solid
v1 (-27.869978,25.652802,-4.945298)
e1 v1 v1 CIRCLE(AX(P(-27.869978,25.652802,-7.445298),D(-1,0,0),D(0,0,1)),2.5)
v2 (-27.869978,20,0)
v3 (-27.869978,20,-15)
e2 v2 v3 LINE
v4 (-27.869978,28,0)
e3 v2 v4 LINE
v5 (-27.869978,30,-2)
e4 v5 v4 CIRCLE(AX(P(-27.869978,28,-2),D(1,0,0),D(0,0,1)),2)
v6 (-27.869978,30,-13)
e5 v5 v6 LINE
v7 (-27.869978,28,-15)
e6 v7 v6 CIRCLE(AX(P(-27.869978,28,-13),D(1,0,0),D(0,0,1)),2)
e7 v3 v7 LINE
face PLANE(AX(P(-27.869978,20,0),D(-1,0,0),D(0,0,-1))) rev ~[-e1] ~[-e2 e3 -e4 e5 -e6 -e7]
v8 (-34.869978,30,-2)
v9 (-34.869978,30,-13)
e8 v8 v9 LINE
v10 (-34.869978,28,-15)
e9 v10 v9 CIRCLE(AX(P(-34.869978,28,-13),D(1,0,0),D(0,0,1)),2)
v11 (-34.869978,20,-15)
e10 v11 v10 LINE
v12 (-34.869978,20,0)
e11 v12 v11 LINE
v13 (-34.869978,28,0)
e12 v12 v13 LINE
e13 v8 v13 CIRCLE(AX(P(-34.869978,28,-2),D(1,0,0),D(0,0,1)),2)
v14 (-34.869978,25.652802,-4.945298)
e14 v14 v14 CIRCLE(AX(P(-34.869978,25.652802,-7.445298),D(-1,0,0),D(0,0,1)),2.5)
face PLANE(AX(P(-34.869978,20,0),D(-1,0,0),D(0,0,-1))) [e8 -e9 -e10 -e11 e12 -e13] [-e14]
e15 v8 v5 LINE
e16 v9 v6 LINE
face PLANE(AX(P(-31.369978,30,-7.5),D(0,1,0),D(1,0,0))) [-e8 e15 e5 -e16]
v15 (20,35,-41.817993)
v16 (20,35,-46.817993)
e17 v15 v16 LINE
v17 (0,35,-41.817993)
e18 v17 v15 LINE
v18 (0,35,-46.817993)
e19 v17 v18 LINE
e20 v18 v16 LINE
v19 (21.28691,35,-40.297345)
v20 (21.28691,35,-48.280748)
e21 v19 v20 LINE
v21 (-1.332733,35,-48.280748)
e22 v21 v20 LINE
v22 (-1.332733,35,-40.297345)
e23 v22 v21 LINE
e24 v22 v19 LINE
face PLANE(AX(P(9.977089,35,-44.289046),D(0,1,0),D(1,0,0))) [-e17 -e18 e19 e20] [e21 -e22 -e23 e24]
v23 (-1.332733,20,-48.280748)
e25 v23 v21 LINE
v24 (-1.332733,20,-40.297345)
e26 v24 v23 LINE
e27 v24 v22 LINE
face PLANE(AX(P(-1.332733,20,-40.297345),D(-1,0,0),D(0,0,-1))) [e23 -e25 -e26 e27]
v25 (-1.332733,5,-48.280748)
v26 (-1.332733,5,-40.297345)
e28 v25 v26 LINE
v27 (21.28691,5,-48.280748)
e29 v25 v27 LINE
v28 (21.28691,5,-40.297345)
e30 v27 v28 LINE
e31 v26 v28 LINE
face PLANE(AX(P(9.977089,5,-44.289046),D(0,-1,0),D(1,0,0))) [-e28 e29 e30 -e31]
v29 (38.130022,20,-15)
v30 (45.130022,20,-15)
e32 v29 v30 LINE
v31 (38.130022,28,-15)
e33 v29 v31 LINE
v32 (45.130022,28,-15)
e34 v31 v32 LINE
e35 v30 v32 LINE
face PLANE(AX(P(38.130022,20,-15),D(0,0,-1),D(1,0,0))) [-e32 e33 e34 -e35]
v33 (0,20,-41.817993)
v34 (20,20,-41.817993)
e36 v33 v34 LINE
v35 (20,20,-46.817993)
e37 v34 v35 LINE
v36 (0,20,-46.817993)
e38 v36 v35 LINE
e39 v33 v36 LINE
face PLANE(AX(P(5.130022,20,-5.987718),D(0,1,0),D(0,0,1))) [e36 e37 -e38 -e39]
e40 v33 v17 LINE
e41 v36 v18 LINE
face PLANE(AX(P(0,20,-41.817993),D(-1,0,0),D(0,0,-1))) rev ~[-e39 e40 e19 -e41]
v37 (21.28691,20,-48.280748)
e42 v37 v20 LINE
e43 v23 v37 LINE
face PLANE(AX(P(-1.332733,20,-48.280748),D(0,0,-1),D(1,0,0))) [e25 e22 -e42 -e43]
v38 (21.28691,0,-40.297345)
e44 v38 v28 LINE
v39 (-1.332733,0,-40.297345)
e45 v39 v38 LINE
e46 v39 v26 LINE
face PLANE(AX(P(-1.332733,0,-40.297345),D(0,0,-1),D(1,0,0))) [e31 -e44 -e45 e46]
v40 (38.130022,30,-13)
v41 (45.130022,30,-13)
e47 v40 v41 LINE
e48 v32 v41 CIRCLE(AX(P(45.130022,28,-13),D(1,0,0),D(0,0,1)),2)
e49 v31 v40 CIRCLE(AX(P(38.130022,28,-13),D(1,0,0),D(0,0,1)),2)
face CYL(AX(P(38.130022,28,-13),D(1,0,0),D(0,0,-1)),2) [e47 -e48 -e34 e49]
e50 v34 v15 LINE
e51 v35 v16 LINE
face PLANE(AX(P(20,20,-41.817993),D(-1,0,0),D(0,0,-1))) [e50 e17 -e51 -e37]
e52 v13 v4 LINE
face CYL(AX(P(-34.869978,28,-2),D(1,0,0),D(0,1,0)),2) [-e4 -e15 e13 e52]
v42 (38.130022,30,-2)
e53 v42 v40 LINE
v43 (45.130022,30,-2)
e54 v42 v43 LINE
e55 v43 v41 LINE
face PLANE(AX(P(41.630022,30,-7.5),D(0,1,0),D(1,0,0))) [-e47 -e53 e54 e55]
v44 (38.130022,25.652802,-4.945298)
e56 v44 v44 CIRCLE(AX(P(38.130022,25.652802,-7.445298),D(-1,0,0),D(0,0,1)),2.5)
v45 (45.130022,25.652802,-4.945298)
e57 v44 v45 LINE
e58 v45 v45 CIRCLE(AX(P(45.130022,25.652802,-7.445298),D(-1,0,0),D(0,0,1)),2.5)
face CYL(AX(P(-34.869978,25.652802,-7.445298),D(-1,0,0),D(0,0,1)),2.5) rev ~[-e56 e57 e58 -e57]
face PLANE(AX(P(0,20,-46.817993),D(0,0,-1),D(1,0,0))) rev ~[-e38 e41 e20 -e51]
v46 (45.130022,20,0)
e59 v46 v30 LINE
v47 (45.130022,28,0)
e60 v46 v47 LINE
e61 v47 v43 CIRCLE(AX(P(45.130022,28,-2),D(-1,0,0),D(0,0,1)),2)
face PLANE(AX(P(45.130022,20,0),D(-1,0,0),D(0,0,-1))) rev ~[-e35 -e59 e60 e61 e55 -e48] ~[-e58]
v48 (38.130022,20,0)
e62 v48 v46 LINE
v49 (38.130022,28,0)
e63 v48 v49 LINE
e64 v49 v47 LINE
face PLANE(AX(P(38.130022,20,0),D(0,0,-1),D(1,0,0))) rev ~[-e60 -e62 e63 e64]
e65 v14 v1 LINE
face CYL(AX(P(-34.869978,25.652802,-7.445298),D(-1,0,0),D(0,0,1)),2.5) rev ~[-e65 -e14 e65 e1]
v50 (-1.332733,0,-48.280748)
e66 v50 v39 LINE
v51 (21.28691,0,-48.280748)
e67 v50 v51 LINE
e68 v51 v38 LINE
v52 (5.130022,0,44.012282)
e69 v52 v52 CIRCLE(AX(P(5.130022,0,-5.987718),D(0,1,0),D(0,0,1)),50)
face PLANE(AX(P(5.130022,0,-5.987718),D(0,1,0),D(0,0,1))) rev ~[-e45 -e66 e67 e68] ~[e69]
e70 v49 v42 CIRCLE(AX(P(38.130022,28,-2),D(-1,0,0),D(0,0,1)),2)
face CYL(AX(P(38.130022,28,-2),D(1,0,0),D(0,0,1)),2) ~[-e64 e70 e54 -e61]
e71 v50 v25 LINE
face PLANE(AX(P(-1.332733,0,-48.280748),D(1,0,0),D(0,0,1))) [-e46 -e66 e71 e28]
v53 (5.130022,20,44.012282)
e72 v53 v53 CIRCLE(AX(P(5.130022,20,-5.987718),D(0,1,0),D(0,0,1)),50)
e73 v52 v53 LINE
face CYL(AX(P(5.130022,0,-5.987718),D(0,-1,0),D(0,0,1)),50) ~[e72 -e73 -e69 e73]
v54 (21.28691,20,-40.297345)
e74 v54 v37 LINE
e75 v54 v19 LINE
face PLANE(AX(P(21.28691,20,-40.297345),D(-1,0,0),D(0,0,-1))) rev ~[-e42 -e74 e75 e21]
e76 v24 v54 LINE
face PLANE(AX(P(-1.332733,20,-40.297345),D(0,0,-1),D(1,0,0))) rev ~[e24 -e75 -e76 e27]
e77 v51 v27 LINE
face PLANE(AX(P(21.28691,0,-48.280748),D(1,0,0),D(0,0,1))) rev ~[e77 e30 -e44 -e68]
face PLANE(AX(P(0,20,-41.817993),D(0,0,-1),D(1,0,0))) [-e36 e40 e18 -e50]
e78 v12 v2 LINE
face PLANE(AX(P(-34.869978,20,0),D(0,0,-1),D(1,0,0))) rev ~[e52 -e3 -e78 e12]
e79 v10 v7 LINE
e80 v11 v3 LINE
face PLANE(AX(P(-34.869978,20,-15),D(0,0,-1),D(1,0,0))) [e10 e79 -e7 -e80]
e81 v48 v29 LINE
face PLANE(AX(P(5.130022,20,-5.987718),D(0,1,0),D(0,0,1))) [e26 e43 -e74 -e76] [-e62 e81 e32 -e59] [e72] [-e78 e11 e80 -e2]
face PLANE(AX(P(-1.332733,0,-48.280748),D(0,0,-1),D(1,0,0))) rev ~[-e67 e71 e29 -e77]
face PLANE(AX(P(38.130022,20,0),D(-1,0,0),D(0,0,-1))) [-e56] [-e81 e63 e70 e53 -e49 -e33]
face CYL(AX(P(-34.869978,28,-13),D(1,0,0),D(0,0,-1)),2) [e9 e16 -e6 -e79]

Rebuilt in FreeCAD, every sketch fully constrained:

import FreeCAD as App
import Part
import Sketcher


def edges_at(feature, points):
    """Names of the edges that pass closest to the given points."""
    edges = feature.Shape.Edges
    near = lambda p: min(range(len(edges)), key=lambda i: edges[i].distToShape(Part.Vertex(*p))[0])
    return sorted({f"Edge{near(p) + 1}" for p in points})


def add_polygon(sketch, points):
    """Adds a closed chain of lines whose ends are joined by coincident constraints."""
    first, n = sketch.GeometryCount, len(points)
    for a, b in zip(points, points[1:] + points[:1]):
        sketch.addGeometry(Part.LineSegment(App.Vector(*a, 0), App.Vector(*b, 0)), False)
    for i in range(n):
        sketch.addConstraint(Sketcher.Constraint("Coincident", first + i, 2, first + (i + 1) % n, 1))

doc = App.newDocument("Part")
params = doc.addObject("Spreadsheet::Sheet", "Params")
for row, (alias, value) in enumerate([
    ("sketch1_diameter", "100 mm"),
    ("pad1_length", "20 mm"),
    ("sketch2_width", "7 mm"),
    ("sketch2_height", "15 mm"),
    ("pad2_length", "10 mm"),
    ("sketch3_diameter", "5 mm"),
    ("sketch4_width", "20 mm"),
    ("sketch4_height", "5 mm"),
    ("pad3_length", "15 mm"),
    ("pocket2_length", "5 mm"),
    ("fillet_radius", "2 mm"),
    ("fillet2_radius", "2 mm"),
], start=1):
    params.set(f"A{row}", alias)
    params.set(f"B{row}", "=" + value)
    params.setAlias(f"B{row}", alias)

body = doc.addObject("PartDesign::Body", "Body")

sketch1 = body.newObject("Sketcher::SketchObject", "Sketch")
sketch1.AttachmentSupport = (doc.getObject("XZ_Plane"), [""])
sketch1.MapMode = "FlatFace"
sketch1.addGeometry(Part.Circle(App.Vector(5.130022, -5.987718, 0), App.Vector(0, 0, 1), 50), False)
sketch1.addConstraint([
    Sketcher.Constraint("Diameter", 0, 100.0),
    Sketcher.Constraint("DistanceX", -1, 1, 0, 3, 5.130022),
    Sketcher.Constraint("DistanceY", 0, 3, -1, 1, 5.987718),
])
sketch1.setExpression("Constraints[0]", "Params.sketch1_diameter")
pad1 = body.newObject("PartDesign::Pad", "Pad")
pad1.Profile = sketch1
pad1.setExpression("Length", "Params.pad1_length")
pad1.Reversed = True

sketch2 = body.newObject("Sketcher::SketchObject", "Sketch001")
sketch2.AttachmentSupport = (doc.getObject("XZ_Plane"), [""])
sketch2.MapMode = "FlatFace"
sketch2.AttachmentOffset = App.Placement(App.Vector(0, 0, -20), App.Rotation())
add_polygon(sketch2, [(-34.869978, -15), (-34.869978, 0), (-27.869978, 0), (-27.869978, -15)])
add_polygon(sketch2, [(38.130022, -15), (38.130022, 0), (45.130022, 0), (45.130022, -15)])
sketch2.addConstraint([
    Sketcher.Constraint("Vertical", 0),
    Sketcher.Constraint("Horizontal", 1),
    Sketcher.Constraint("Vertical", 2),
    Sketcher.Constraint("Horizontal", 3),
    Sketcher.Constraint("Vertical", 4),
    Sketcher.Constraint("Horizontal", 5),
    Sketcher.Constraint("Vertical", 6),
    Sketcher.Constraint("Horizontal", 7),
    Sketcher.Constraint("PointOnObject", 0, 2, -1),
    Sketcher.Constraint("PointOnObject", 4, 2, -1),
    Sketcher.Constraint("Horizontal", 3, 2, 6, 2),
    Sketcher.Constraint("Equal", 3, 5),
    Sketcher.Constraint("DistanceX", 1, 1, 1, 2, 7.0),
    Sketcher.Constraint("DistanceY", 0, 1, 0, 2, 15.0),
    Sketcher.Constraint("DistanceX", 1, 2, 4, 2, 66.0),
    Sketcher.Constraint("DistanceX", 0, 2, -1, 1, 34.869978),
])
sketch2.setExpression("Constraints[20]", "Params.sketch2_width")
sketch2.setExpression("Constraints[21]", "Params.sketch2_height")
pad2 = body.newObject("PartDesign::Pad", "Pad001")
pad2.Profile = sketch2
pad2.setExpression("Length", "Params.pad2_length")
pad2.Reversed = True

sketch3 = body.newObject("Sketcher::SketchObject", "Sketch002")
sketch3.AttachmentSupport = (doc.getObject("YZ_Plane"), [""])
sketch3.MapMode = "FlatFace"
sketch3.AttachmentOffset = App.Placement(App.Vector(0, 0, -34.869978), App.Rotation())
sketch3.addGeometry(Part.Circle(App.Vector(25.652802, -7.445298, 0), App.Vector(0, 0, 1), 2.5), False)
sketch3.addConstraint([
    Sketcher.Constraint("Diameter", 0, 5.0),
    Sketcher.Constraint("DistanceX", -1, 1, 0, 3, 25.652802),
    Sketcher.Constraint("DistanceY", 0, 3, -1, 1, 7.445298),
])
sketch3.setExpression("Constraints[0]", "Params.sketch3_diameter")
pocket1 = body.newObject("PartDesign::Pocket", "Pocket")
pocket1.Profile = sketch3
pocket1.Type = "ThroughAll"
pocket1.Reversed = True

sketch4 = body.newObject("Sketcher::SketchObject", "Sketch003")
sketch4.AttachmentSupport = (doc.getObject("XZ_Plane"), [""])
sketch4.MapMode = "FlatFace"
sketch4.AttachmentOffset = App.Placement(App.Vector(0, 0, -20), App.Rotation())
add_polygon(sketch4, [(-1.332733, -48.280748), (-1.332733, -40.297345), (21.28691, -40.297345), (21.28691, -48.280748)])
add_polygon(sketch4, [(20, -41.817993), (0, -41.817993), (0, -46.817993), (20, -46.817993)])
sketch4.addConstraint([
    Sketcher.Constraint("Vertical", 0),
    Sketcher.Constraint("Horizontal", 1),
    Sketcher.Constraint("Vertical", 2),
    Sketcher.Constraint("Horizontal", 3),
    Sketcher.Constraint("Horizontal", 4),
    Sketcher.Constraint("Vertical", 5),
    Sketcher.Constraint("Horizontal", 6),
    Sketcher.Constraint("Vertical", 7),
    Sketcher.Constraint("PointOnObject", 4, 2, -2),
    Sketcher.Constraint("DistanceX", 4, 2, 4, 1, 20.0),
    Sketcher.Constraint("DistanceY", 5, 2, 5, 1, 5.0),
    Sketcher.Constraint("DistanceX", 1, 1, 1, 2, 22.619643),
    Sketcher.Constraint("DistanceY", 0, 1, 0, 2, 7.983403),
    Sketcher.Constraint("DistanceX", -1, 1, 1, 2, 21.28691),
    Sketcher.Constraint("DistanceY", 2, 2, -1, 1, 48.280748),
    Sketcher.Constraint("DistanceY", 4, 2, 0, 2, 1.520648),
])
sketch4.setExpression("Constraints[17]", "Params.sketch4_width")
sketch4.setExpression("Constraints[18]", "Params.sketch4_height")
pad3 = body.newObject("PartDesign::Pad", "Pad002")
pad3.Profile = sketch4
pad3.setExpression("Length", "Params.pad3_length")
pad3.Reversed = True

sketch5 = body.newObject("Sketcher::SketchObject", "Sketch004")
sketch5.AttachmentSupport = (doc.getObject("XZ_Plane"), [""])
sketch5.MapMode = "FlatFace"
add_polygon(sketch5, [(-1.332733, -40.297345), (-1.332733, -48.280748), (21.28691, -48.280748), (21.28691, -40.297345)])
sketch5.addConstraint([
    Sketcher.Constraint("Vertical", 0),
    Sketcher.Constraint("Horizontal", 1),
    Sketcher.Constraint("Vertical", 2),
    Sketcher.Constraint("Horizontal", 3),
    Sketcher.Constraint("DistanceX", 1, 1, 1, 2, 22.619643),
    Sketcher.Constraint("DistanceY", 0, 2, 0, 1, 7.983403),
    Sketcher.Constraint("DistanceY", 0, 2, -1, 1, 48.280748),
    Sketcher.Constraint("DistanceX", -1, 1, 1, 2, 21.28691),
])
pocket2 = body.newObject("PartDesign::Pocket", "Pocket001")
pocket2.Profile = sketch5
pocket2.setExpression("Length", "Params.pocket2_length")
doc.recompute()

fillet = body.newObject("PartDesign::Fillet", "Fillet")
fillet.Base = (pocket2, edges_at(pocket2, [(-31.37, 30, -15)]))
fillet.setExpression("Radius", "Params.fillet_radius")
doc.recompute()

fillet2 = body.newObject("PartDesign::Fillet", "Fillet001")
fillet2.Base = (fillet, edges_at(fillet, [(41.63, 30, 0), (41.63, 30, -15), (-31.37, 30, 0)]))
fillet2.setExpression("Radius", "Params.fillet2_radius")

doc.recompute()
